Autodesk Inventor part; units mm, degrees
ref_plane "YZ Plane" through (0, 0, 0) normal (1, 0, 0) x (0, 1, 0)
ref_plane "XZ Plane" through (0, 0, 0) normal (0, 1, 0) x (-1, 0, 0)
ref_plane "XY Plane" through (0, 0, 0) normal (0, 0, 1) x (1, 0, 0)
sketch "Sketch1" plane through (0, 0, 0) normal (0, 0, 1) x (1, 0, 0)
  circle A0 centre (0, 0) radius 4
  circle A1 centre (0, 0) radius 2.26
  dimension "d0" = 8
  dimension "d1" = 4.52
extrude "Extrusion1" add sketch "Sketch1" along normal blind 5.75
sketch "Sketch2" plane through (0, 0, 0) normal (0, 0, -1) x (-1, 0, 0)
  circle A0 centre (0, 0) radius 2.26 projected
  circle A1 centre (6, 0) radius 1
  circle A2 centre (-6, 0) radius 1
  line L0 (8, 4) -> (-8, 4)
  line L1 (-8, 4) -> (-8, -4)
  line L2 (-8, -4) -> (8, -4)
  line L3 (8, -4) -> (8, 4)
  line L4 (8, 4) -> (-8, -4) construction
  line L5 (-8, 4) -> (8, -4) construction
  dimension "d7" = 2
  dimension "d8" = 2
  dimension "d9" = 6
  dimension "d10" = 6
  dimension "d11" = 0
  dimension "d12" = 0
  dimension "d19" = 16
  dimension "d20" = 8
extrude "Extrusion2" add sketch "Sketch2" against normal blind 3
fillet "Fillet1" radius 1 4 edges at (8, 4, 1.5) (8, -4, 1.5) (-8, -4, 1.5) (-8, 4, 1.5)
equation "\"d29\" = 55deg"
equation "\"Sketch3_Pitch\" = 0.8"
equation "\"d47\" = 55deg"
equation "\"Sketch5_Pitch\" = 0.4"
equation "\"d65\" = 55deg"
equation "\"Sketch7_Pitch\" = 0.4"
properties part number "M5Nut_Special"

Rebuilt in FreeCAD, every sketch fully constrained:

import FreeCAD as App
import Part
import Sketcher
Q = App.Units.Quantity


def edges_at(feature, points):
    """Names of the edges that pass closest to the given points."""
    edges = feature.Shape.Edges
    near = lambda p: min(range(len(edges)), key=lambda i: edges[i].distToShape(Part.Vertex(*p))[0])
    return sorted({f"Edge{near(p) + 1}" for p in points})


def add_polygon(sketch, points):
    """Adds a closed chain of lines whose ends are joined by coincident constraints."""
    first, n = sketch.GeometryCount, len(points)
    for a, b in zip(points, points[1:] + points[:1]):
        sketch.addGeometry(Part.LineSegment(App.Vector(*a, 0), App.Vector(*b, 0)), False)
    for i in range(n):
        sketch.addConstraint(Sketcher.Constraint("Coincident", first + i, 2, first + (i + 1) % n, 1))

doc = App.newDocument("Part")
body = doc.addObject("PartDesign::Body", "Body")

sketch1 = doc.addObject("Sketcher::SketchObject", "Sketch")
body.addObject(sketch1)
sketch1.AttachmentSupport = (doc.XY_Plane, [""])
sketch1.MapMode = "FlatFace"
sketch1.addGeometry(Part.Circle(App.Vector(0, 0, 0), App.Vector(0, 0, 1), 4), False)
sketch1.addGeometry(Part.Circle(App.Vector(0, 0, 0), App.Vector(0, 0, 1), 2.3), False)
sketch1.addConstraint(Sketcher.Constraint("Coincident", 0, 3, -1, 1))
sketch1.addConstraint(Sketcher.Constraint("Coincident", 1, 3, -1, 1))
sketch1.addConstraint(Sketcher.Constraint("Diameter", 0, Q("8 mm")))
sketch1.addConstraint(Sketcher.Constraint("Diameter", 1, Q("4.52 mm")))
pad1 = doc.addObject("PartDesign::Pad", "Pad")
body.addObject(pad1)
pad1.Profile = sketch1
pad1.Length = 5.75

sketch2 = doc.addObject("Sketcher::SketchObject", "Sketch001")
body.addObject(sketch2)
sketch2.AttachmentSupport = (doc.XY_Plane, [""])
sketch2.MapMode = "FlatFace"
add_polygon(sketch2, [(-8, -4), (-8, 4), (8, 4), (8, -4)])
sketch2.addGeometry(Part.Circle(App.Vector(6, 0, 0), App.Vector(0, 0, 1), 1), False)
sketch2.addGeometry(Part.Circle(App.Vector(0, 0, 0), App.Vector(0, 0, 1), 2.3), False)
sketch2.addGeometry(Part.Circle(App.Vector(-6, 0, 0), App.Vector(0, 0, 1), 1), False)
sketch2.addConstraint(Sketcher.Constraint("Vertical", 0))
sketch2.addConstraint(Sketcher.Constraint("Horizontal", 1))
sketch2.addConstraint(Sketcher.Constraint("Vertical", 2))
sketch2.addConstraint(Sketcher.Constraint("Horizontal", 3))
sketch2.addConstraint(Sketcher.Constraint("Coincident", 5, 3, -1, 1))
sketch2.addConstraint(Sketcher.Constraint("Equal", 4, 6))
sketch2.addConstraint(Sketcher.Constraint("Symmetric", 4, 3, 6, 3, -1, 1))
sketch2.addConstraint(Sketcher.Constraint("Symmetric", 0, 2, 2, 2, -1, 1))
sketch2.addConstraint(Sketcher.Constraint("PointOnObject", 4, 3, -1))
sketch2.addConstraint(Sketcher.Constraint("Diameter", 4, Q("2 mm")))
sketch2.addConstraint(Sketcher.Constraint("DistanceX", 1, 1, 1, 2, Q("16 mm")))
sketch2.addConstraint(Sketcher.Constraint("DistanceY", 0, 1, 0, 2, Q("8 mm")))
sketch2.addConstraint(Sketcher.Constraint("DistanceX", -1, 1, 4, 3, Q("6 mm")))
sketch2.addConstraint(Sketcher.Constraint("Diameter", 5, Q("4.52 mm")))
pad2 = doc.addObject("PartDesign::Pad", "Pad001")
body.addObject(pad2)
pad2.Profile = sketch2
pad2.Length = 3
doc.recompute()

fillet = doc.addObject("PartDesign::Fillet", "Fillet")
body.addObject(fillet)
fillet.Base = (pad2, edges_at(pad2, [
    (8, 4, 1.5),
    (8, -4, 1.5),
    (-8, -4, 1.5),
    (-8, 4, 1.5),
]))
fillet.Radius = 1

doc.recompute()
